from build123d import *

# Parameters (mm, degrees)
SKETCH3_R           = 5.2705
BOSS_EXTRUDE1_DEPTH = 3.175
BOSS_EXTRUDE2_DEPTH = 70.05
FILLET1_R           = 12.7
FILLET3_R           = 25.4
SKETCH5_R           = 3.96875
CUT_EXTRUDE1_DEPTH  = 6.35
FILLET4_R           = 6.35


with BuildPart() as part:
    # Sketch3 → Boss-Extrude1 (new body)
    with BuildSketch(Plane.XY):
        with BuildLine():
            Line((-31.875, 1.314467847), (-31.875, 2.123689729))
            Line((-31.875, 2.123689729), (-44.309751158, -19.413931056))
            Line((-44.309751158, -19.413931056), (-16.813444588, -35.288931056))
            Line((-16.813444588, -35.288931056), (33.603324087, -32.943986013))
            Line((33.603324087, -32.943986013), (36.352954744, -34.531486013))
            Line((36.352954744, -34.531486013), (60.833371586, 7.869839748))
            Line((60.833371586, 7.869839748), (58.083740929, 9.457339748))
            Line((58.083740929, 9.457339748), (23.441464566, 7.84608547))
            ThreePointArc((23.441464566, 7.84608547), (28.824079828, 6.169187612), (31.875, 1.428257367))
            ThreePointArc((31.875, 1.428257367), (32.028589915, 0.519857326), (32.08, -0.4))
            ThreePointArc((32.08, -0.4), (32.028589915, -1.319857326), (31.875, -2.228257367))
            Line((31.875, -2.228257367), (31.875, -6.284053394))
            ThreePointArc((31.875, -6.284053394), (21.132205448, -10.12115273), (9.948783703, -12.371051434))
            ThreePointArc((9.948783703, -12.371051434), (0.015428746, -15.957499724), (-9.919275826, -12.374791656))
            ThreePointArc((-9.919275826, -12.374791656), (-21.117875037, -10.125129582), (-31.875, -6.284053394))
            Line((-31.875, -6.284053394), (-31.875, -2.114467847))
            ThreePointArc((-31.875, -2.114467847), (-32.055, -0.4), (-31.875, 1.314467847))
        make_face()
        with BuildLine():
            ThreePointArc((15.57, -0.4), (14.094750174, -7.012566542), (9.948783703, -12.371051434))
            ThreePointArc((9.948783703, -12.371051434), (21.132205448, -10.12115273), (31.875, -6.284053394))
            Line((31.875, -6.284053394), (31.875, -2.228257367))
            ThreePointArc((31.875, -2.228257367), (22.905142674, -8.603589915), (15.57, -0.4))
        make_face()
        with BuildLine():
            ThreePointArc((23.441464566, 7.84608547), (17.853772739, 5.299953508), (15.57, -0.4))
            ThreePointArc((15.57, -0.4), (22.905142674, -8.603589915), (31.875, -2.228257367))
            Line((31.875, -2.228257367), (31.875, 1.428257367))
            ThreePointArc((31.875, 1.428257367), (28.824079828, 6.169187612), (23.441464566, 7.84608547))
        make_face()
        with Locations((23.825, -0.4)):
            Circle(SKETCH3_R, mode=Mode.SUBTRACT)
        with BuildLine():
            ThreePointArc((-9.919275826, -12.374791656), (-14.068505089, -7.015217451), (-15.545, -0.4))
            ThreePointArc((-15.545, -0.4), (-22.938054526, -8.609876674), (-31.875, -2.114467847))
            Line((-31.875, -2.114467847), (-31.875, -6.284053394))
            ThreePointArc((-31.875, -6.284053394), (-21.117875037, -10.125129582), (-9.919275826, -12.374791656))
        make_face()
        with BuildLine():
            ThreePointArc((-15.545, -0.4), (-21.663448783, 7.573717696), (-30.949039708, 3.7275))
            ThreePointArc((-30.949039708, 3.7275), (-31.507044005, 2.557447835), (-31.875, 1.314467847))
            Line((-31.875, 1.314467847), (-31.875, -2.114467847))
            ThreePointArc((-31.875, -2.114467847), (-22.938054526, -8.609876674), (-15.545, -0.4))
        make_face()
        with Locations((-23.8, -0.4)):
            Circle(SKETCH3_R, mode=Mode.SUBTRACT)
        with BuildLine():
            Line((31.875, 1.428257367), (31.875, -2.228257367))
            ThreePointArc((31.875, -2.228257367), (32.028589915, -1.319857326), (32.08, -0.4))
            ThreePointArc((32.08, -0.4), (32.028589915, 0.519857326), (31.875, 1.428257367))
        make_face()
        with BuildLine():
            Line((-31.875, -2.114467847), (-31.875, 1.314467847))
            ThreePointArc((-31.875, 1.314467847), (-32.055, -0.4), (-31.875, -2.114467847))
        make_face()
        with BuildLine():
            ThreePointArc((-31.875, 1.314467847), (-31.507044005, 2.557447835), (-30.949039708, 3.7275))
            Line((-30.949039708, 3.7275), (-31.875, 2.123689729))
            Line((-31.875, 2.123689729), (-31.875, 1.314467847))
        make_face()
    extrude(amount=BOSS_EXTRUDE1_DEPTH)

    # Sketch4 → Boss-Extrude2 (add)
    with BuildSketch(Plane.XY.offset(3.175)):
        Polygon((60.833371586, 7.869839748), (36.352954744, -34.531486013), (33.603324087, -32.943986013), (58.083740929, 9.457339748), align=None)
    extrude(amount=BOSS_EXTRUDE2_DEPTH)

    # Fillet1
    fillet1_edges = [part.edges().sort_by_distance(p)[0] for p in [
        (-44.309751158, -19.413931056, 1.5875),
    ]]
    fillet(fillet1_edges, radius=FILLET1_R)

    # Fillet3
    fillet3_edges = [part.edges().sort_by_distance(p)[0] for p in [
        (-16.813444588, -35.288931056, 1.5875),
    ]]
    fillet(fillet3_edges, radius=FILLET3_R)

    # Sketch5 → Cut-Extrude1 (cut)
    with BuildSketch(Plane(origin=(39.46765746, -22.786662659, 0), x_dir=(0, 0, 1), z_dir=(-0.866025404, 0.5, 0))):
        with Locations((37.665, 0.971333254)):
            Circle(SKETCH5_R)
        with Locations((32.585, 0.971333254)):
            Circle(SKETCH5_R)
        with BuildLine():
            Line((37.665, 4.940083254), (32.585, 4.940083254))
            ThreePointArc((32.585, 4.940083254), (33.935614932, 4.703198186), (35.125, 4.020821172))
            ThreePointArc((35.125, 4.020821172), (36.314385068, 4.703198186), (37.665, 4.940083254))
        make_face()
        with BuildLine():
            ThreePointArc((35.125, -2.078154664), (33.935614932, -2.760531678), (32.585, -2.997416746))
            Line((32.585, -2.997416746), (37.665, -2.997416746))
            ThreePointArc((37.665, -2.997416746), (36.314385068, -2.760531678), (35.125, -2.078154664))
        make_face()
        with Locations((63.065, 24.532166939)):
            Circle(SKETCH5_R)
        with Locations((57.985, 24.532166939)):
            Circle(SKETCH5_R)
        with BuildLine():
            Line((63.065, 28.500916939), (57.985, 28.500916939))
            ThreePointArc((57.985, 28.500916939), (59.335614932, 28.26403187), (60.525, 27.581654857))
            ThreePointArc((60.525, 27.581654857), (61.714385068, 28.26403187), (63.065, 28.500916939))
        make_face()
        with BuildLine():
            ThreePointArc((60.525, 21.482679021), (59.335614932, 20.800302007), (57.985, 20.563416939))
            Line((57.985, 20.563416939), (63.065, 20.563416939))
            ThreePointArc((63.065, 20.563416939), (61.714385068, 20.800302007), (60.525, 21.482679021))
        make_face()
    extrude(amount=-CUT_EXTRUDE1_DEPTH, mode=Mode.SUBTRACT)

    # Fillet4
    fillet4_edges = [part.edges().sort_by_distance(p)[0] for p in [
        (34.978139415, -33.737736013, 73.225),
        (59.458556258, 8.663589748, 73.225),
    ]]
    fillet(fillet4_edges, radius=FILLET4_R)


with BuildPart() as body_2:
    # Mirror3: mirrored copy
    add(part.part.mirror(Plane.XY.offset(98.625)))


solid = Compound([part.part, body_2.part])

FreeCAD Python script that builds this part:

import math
import FreeCAD as App
import Part
import Sketcher
Q = App.Units.Quantity


def edges_at(feature, points):
    """Names of the edges that pass closest to the given points."""
    edges = feature.Shape.Edges
    near = lambda p: min(range(len(edges)), key=lambda i: edges[i].distToShape(Part.Vertex(*p))[0])
    return sorted({f"Edge{near(p) + 1}" for p in points})

doc = App.newDocument("Part")
body = doc.addObject("PartDesign::Body", "Body")

# Sketch on XY plane
sketch1 = body.newObject("Sketcher::SketchObject", "Sketch")
sketch1.AttachmentSupport = (doc.getObject("XY_Plane"), [""])
sketch1.MapMode = "FlatFace"
sketch1.addGeometry(Part.LineSegment(App.Vector(-31.9, 2.1, 0), App.Vector(-44.3, -19.4, 0)), False)
sketch1.addGeometry(Part.LineSegment(App.Vector(-44.3, -19.4, 0), App.Vector(-16.8, -35.3, 0)), False)
sketch1.addGeometry(Part.LineSegment(App.Vector(-16.8, -35.3, 0), App.Vector(33.6, -32.9, 0)), False)
sketch1.addGeometry(Part.LineSegment(App.Vector(33.6, -32.9, 0), App.Vector(36.4, -34.5, 0)), False)
sketch1.addGeometry(Part.LineSegment(App.Vector(36.4, -34.5, 0), App.Vector(60.8, 7.9, 0)), False)
sketch1.addGeometry(Part.LineSegment(App.Vector(60.8, 7.9, 0), App.Vector(58.1, 9.5, 0)), False)
sketch1.addGeometry(Part.LineSegment(App.Vector(58.1, 9.5, 0), App.Vector(23.4, 7.8, 0)), False)
sketch1.addGeometry(Part.ArcOfCircle(Part.Circle(App.Vector(23.8, -0.4, 0), App.Vector(0, 0, 1), 8.3), math.radians(93), math.radians(180)), False)
sketch1.addGeometry(Part.ArcOfCircle(Part.Circle(App.Vector(0, -0.4, 0), App.Vector(0, 0, 1), 15.6), math.radians(-50), math.radians(0)), False)
sketch1.addGeometry(Part.ArcOfCircle(Part.Circle(App.Vector(0, -0.4, 0), App.Vector(0, 0, 1), 15.6), math.radians(-130), math.radians(-50)), False)
sketch1.addGeometry(Part.ArcOfCircle(Part.Circle(App.Vector(0, -0.4, 0), App.Vector(0, 0, 1), 15.6), math.radians(-180), math.radians(-130)), False)
sketch1.addGeometry(Part.ArcOfCircle(Part.Circle(App.Vector(-23.8, -0.4, 0), App.Vector(0, 0, 1), 8.3), math.radians(0), math.radians(150)), False)
sketch1.addGeometry(Part.LineSegment(App.Vector(-30.9, 3.7, 0), App.Vector(-31.9, 2.1, 0)), False)
sketch1.addGeometry(Part.Circle(App.Vector(-23.8, -0.4, 0), App.Vector(0, 0, 1), 5.3), False)
sketch1.addGeometry(Part.Circle(App.Vector(23.8, -0.4, 0), App.Vector(0, 0, 1), 5.3), False)
sketch1.addConstraint(Sketcher.Constraint("Coincident", 0, 2, 1, 1))
sketch1.addConstraint(Sketcher.Constraint("Coincident", 1, 2, 2, 1))
sketch1.addConstraint(Sketcher.Constraint("Coincident", 2, 2, 3, 1))
sketch1.addConstraint(Sketcher.Constraint("Coincident", 3, 2, 4, 1))
sketch1.addConstraint(Sketcher.Constraint("Coincident", 4, 2, 5, 1))
sketch1.addConstraint(Sketcher.Constraint("Coincident", 5, 2, 6, 1))
sketch1.addConstraint(Sketcher.Constraint("Tangent", 6, 2, 7, 1))
sketch1.addConstraint(Sketcher.Constraint("Tangent", 7, 2, 8, 2))
sketch1.addConstraint(Sketcher.Constraint("Tangent", 8, 1, 9, 2))
sketch1.addConstraint(Sketcher.Constraint("Tangent", 9, 1, 10, 2))
sketch1.addConstraint(Sketcher.Constraint("Tangent", 10, 1, 11, 1))
sketch1.addConstraint(Sketcher.Constraint("Tangent", 11, 2, 12, 1))
sketch1.addConstraint(Sketcher.Constraint("Coincident", 12, 2, 0, 1))
sketch1.addConstraint(Sketcher.Constraint("Coincident", 10, 3, 8, 3))
sketch1.addConstraint(Sketcher.Constraint("Coincident", 13, 3, 11, 3))
sketch1.addConstraint(Sketcher.Constraint("Coincident", 14, 3, 7, 3))
sketch1.addConstraint(Sketcher.Constraint("Equal", 7, 11))
sketch1.addConstraint(Sketcher.Constraint("Equal", 13, 14))
sketch1.addConstraint(Sketcher.Constraint("Perpendicular", 0, 1))
sketch1.addConstraint(Sketcher.Constraint("Parallel", 1, 3))
sketch1.addConstraint(Sketcher.Constraint("Perpendicular", 3, 4))
sketch1.addConstraint(Sketcher.Constraint("Perpendicular", 4, 5))
sketch1.addConstraint(Sketcher.Constraint("Parallel", 2, 6))
sketch1.addConstraint(Sketcher.Constraint("Perpendicular", 5, 12))
sketch1.addConstraint(Sketcher.Constraint("Horizontal", 7, 3, 8, 3))
sketch1.addConstraint(Sketcher.Constraint("Horizontal", 10, 3, 11, 3))
sketch1.addConstraint(Sketcher.Constraint("Equal", 3, 5))
sketch1.addConstraint(Sketcher.Constraint("Diameter", 13, Q("0.415 in")))
sketch1.addConstraint(Sketcher.Constraint("Angle", 0, Q("-120 deg")))
sketch1.addConstraint(Sketcher.Constraint("Radius", 7, Q("0.325 in")))
sketch1.addConstraint(Sketcher.Constraint("Radius", 8, Q("0.6125 in")))
sketch1.addConstraint(Sketcher.Constraint("Distance", 1, Q("1.25 in")))
sketch1.addConstraint(Sketcher.Constraint("Distance", 3, Q("0.125 in")))
sketch1.addConstraint(Sketcher.Constraint("DistanceX", 6, 2, 14, 3, Q("0.0150998 in")))
sketch1.addConstraint(Sketcher.Constraint("DistanceX", -1, 1, 7, 3, 23.825))
sketch1.addConstraint(Sketcher.Constraint("DistanceY", 7, 3, -1, 1, 0.4))
sketch1.addConstraint(Sketcher.Constraint("DistanceX", 12, 2, -1, 1, 31.875))
sketch1.addConstraint(Sketcher.Constraint("DistanceX", 0, 2, -1, 1, 44.309751))
sketch1.addConstraint(Sketcher.Constraint("DistanceX", -1, 1, 4, 2, 60.833372))
sketch1.addConstraint(Sketcher.Constraint("DistanceY", 8, 1, -1, 1, 12.371051))
sketch1.addConstraint(Sketcher.Constraint("DistanceY", 9, 1, -1, 1, 12.374792))
pad1 = body.newObject("PartDesign::Pad", "Pad")
pad1.Profile = sketch1
pad1.Length = Q("0.125 in")

# Sketch on XY plane
sketch2 = body.newObject("Sketcher::SketchObject", "Sketch001")
sketch2.AttachmentSupport = (doc.getObject("XY_Plane"), [""])
sketch2.MapMode = "FlatFace"
sketch2.AttachmentOffset = App.Placement(App.Vector(0, 0, 0.125 * 25.4), App.Rotation())
sketch2.addGeometry(Part.LineSegment(App.Vector(36.4, -34.5, 0), App.Vector(60.8, 7.9, 0)), False)
sketch2.addGeometry(Part.LineSegment(App.Vector(60.8, 7.9, 0), App.Vector(58.1, 9.5, 0)), False)
sketch2.addGeometry(Part.LineSegment(App.Vector(58.1, 9.5, 0), App.Vector(33.6, -32.9, 0)), False)
sketch2.addGeometry(Part.LineSegment(App.Vector(33.6, -32.9, 0), App.Vector(36.4, -34.5, 0)), False)
sketch2.addConstraint(Sketcher.Constraint("Coincident", 0, 2, 1, 1))
sketch2.addConstraint(Sketcher.Constraint("Coincident", 1, 2, 2, 1))
sketch2.addConstraint(Sketcher.Constraint("Coincident", 2, 2, 3, 1))
sketch2.addConstraint(Sketcher.Constraint("Coincident", 3, 2, 0, 1))
sketch2.addConstraint(Sketcher.Constraint("Perpendicular", 0, 1))
sketch2.addConstraint(Sketcher.Constraint("Perpendicular", 1, 2))
sketch2.addConstraint(Sketcher.Constraint("Perpendicular", 2, 3))
sketch2.addConstraint(Sketcher.Constraint("Angle", 0, Q("60 deg")))
sketch2.addConstraint(Sketcher.Constraint("Distance", 1, Q("0.125 in")))
sketch2.addConstraint(Sketcher.Constraint("DistanceX", -1, 1, 0, 2, 60.833372))
sketch2.addConstraint(Sketcher.Constraint("DistanceY", -1, 1, 0, 2, 7.86984))
sketch2.addConstraint(Sketcher.Constraint("Distance", 0, 48.960834))
pad2 = body.newObject("PartDesign::Pad", "Pad001")
pad2.Profile = sketch2
pad2.Length = 70.05
doc.recompute()

fillet = body.newObject("PartDesign::Fillet", "Fillet")
fillet.Base = (pad2, edges_at(pad2, [(-44.31, -19.414, 1.587)]))
fillet.Radius = Q("0.5 in")
doc.recompute()

fillet2 = body.newObject("PartDesign::Fillet", "Fillet001")
fillet2.Base = (fillet, edges_at(fillet, [(-16.813, -35.289, 1.587)]))
fillet2.Radius = Q("1 in")

# Sketch on an angled plane
sketch3 = body.newObject("Sketcher::SketchObject", "Sketch002")
sketch3.Placement = App.Placement(App.Vector(39.467657, -22.786663, 0), App.Rotation(App.Vector(0, 0, 1), App.Vector(0.5, 0.866025404, 0), App.Vector(-0.866025404, 0.5, 0), "ZXY"))
sketch3.addGeometry(Part.ArcOfCircle(Part.Circle(App.Vector(32.6, 1, 0), App.Vector(0, 0, 1), 4), math.radians(90), math.radians(270)), False)
sketch3.addGeometry(Part.LineSegment(App.Vector(32.6, -3, 0), App.Vector(37.7, -3, 0)), False)
sketch3.addGeometry(Part.ArcOfCircle(Part.Circle(App.Vector(37.7, 1, 0), App.Vector(0, 0, 1), 4), math.radians(-90), math.radians(90)), False)
sketch3.addGeometry(Part.LineSegment(App.Vector(37.7, 4.9, 0), App.Vector(32.6, 4.9, 0)), False)
sketch3.addGeometry(Part.LineSegment(App.Vector(63.1, 28.5, 0), App.Vector(58, 28.5, 0)), False)
sketch3.addGeometry(Part.ArcOfCircle(Part.Circle(App.Vector(58, 24.5, 0), App.Vector(0, 0, 1), 4), math.radians(90), math.radians(270)), False)
sketch3.addGeometry(Part.LineSegment(App.Vector(58, 20.6, 0), App.Vector(63.1, 20.6, 0)), False)
sketch3.addGeometry(Part.ArcOfCircle(Part.Circle(App.Vector(63.1, 24.5, 0), App.Vector(0, 0, 1), 4), math.radians(-90), math.radians(90)), False)
sketch3.addConstraint(Sketcher.Constraint("Tangent", 0, 2, 1, 1))
sketch3.addConstraint(Sketcher.Constraint("Tangent", 1, 2, 2, 1))
sketch3.addConstraint(Sketcher.Constraint("Tangent", 2, 2, 3, 1))
sketch3.addConstraint(Sketcher.Constraint("Tangent", 3, 2, 0, 1))
sketch3.addConstraint(Sketcher.Constraint("Tangent", 4, 2, 5, 1))
sketch3.addConstraint(Sketcher.Constraint("Tangent", 5, 2, 6, 1))
sketch3.addConstraint(Sketcher.Constraint("Tangent", 6, 2, 7, 1))
sketch3.addConstraint(Sketcher.Constraint("Tangent", 7, 2, 4, 1))
sketch3.addConstraint(Sketcher.Constraint("Horizontal", 1))
sketch3.addConstraint(Sketcher.Constraint("Horizontal", 3))
sketch3.addConstraint(Sketcher.Constraint("Horizontal", 4))
sketch3.addConstraint(Sketcher.Constraint("Horizontal", 6))
sketch3.addConstraint(Sketcher.Constraint("Equal", 2, 5))
sketch3.addConstraint(Sketcher.Constraint("Equal", 3, 4))
sketch3.addConstraint(Sketcher.Constraint("DistanceX", 1, 1, 1, 2, Q("0.2 in")))
sketch3.addConstraint(Sketcher.Constraint("Radius", 0, Q("0.15625 in")))
sketch3.addConstraint(Sketcher.Constraint("DistanceX", 0, 3, 5, 3, Q("1 in")))
sketch3.addConstraint(Sketcher.Constraint("DistanceX", -1, 1, 0, 3, 32.585))
sketch3.addConstraint(Sketcher.Constraint("DistanceY", -1, 1, 0, 3, 0.971333))
sketch3.addConstraint(Sketcher.Constraint("DistanceY", -1, 1, 5, 3, 24.532167))
pocket1 = body.newObject("PartDesign::Pocket", "Pocket")
pocket1.Profile = sketch3
pocket1.Length = Q("0.25 in")
doc.recompute()

fillet3 = body.newObject("PartDesign::Fillet", "Fillet002")
fillet3.Base = (pocket1, edges_at(pocket1, [(34.978, -33.738, 73.225), (59.459, 8.664, 73.225)]))
fillet3.Radius = Q("0.25 in")
body2 = doc.addObject("PartDesign::Body", "Body001")
doc.recompute()

mirroring = doc.addObject("Part::Mirroring", "Mirroring")
mirroring.Source = body
mirroring.Base = App.Vector(0, 0, 98.625)
mirroring.Normal = App.Vector(0, 0, 1)
body2.BaseFeature = mirroring
doc.recompute()
mirroring.Visibility = False

doc.recompute()
